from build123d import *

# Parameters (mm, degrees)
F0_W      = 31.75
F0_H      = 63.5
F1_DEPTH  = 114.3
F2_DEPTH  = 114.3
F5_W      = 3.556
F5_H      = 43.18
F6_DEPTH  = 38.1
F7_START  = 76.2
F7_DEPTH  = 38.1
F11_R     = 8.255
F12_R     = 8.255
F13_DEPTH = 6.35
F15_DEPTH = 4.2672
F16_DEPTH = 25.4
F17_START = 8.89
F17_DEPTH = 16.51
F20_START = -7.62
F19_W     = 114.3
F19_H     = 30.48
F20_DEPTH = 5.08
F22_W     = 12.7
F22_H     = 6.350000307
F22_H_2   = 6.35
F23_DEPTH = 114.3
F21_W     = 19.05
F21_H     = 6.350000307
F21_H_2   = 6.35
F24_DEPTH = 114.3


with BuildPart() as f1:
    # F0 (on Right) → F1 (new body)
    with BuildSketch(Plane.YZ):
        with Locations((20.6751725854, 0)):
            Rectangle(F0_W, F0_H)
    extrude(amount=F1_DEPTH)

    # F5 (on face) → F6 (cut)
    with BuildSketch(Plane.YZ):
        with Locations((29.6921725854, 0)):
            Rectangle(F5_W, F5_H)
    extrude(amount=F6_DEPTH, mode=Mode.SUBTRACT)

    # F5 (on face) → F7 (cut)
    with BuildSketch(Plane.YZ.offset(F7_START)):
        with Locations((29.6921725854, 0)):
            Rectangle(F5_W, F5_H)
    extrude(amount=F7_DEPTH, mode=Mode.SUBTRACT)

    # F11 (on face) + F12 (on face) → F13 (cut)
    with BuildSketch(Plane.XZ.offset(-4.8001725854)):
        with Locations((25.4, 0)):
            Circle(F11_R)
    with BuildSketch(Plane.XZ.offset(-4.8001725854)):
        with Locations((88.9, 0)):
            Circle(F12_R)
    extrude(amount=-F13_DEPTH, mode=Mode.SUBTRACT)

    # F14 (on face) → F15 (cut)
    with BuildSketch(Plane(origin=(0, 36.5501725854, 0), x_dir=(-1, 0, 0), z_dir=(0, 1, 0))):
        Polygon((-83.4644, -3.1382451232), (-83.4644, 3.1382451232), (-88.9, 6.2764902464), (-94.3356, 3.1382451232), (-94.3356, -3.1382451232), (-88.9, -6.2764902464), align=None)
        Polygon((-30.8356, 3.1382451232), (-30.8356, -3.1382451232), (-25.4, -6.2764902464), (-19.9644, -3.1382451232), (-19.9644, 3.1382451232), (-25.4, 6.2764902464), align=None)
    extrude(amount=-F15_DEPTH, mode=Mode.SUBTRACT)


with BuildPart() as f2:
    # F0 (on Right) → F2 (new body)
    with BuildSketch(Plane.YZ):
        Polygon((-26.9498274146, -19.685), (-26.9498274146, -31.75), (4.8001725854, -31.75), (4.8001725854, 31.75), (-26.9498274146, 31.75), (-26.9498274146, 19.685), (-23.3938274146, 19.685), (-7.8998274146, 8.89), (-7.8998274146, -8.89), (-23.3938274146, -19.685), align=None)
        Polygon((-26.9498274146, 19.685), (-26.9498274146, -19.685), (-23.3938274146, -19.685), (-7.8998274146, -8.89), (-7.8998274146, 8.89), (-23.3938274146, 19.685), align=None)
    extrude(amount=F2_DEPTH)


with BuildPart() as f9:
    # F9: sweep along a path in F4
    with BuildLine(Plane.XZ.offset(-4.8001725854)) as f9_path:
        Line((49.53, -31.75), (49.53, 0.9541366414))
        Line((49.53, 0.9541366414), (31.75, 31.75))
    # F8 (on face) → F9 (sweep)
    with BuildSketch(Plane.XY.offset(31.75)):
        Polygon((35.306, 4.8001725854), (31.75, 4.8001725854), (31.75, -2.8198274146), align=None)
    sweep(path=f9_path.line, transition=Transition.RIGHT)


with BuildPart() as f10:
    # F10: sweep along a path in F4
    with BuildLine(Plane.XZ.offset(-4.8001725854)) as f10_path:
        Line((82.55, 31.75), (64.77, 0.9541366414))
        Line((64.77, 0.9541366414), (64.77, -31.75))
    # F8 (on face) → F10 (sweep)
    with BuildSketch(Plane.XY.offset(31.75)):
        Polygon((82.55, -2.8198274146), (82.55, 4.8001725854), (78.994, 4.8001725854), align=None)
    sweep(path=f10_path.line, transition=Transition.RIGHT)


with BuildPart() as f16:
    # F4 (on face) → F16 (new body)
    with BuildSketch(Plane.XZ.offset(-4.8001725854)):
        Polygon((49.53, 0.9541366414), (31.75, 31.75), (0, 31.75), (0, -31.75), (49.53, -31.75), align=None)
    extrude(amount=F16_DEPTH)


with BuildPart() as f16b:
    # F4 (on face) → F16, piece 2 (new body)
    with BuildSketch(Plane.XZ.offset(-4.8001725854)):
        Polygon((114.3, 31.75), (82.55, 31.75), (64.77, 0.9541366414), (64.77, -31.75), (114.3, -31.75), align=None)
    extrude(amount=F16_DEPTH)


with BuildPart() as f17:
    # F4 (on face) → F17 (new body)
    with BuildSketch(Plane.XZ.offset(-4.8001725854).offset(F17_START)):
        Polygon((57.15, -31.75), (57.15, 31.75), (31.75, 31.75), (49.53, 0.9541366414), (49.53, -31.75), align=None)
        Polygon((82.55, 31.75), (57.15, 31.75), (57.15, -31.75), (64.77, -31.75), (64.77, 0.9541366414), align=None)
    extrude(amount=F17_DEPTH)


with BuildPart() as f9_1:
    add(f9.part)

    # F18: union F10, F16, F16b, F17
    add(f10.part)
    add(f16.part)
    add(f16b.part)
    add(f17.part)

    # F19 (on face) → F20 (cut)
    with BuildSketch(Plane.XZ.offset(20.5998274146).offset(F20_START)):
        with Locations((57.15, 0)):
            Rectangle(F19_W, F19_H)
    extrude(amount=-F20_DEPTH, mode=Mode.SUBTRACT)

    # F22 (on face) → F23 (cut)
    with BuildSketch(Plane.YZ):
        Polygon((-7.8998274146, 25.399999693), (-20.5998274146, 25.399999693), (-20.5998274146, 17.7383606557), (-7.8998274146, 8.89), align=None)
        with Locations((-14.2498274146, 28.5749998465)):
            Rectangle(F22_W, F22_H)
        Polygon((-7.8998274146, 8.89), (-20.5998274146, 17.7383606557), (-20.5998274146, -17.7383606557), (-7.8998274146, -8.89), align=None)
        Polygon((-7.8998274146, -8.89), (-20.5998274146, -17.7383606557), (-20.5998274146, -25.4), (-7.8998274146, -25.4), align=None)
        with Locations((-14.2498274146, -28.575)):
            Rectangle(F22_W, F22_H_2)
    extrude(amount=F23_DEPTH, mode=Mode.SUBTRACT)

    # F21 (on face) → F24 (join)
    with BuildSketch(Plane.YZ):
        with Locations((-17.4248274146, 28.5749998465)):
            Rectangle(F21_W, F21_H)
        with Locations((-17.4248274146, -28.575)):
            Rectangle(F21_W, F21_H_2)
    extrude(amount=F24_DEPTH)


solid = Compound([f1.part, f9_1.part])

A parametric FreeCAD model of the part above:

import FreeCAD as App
import Part
import Sketcher
Q = App.Units.Quantity


def add_polygon(sketch, points):
    """Adds a closed chain of lines whose ends are joined by coincident constraints."""
    first, n = sketch.GeometryCount, len(points)
    for a, b in zip(points, points[1:] + points[:1]):
        sketch.addGeometry(Part.LineSegment(App.Vector(*a, 0), App.Vector(*b, 0)), False)
    for i in range(n):
        sketch.addConstraint(Sketcher.Constraint("Coincident", first + i, 2, first + (i + 1) % n, 1))

doc = App.newDocument("Part")
params = doc.addObject("Spreadsheet::Sheet", "Params")
for row, (alias, value) in enumerate([
    ("sketch1_height", "2.5 in"),
    ("sketch1_width", "1.25 in"),
    ("pad1_length", "4.5 in"),
    ("sketch2_height", "1.7 in"),
    ("sketch2_width", "0.14 in"),
    ("pocket1_length", "1.5 in"),
    ("sketch3_height", "1.7 in"),
    ("sketch3_width", "0.14 in"),
    ("pocket2_length", "1.5 in"),
    ("sketch4_diameter", "0.65 in"),
    ("pocket3_length", "0.25 in"),
    ("pocket4_length", "0.168 in"),
    ("sketch6_height", "2.5 in"),
    ("sketch6_width", "1.25 in"),
    ("pad2_length", "4.5 in"),
    ("sketch7_height", "0.3 in"),
    ("sketch7_width", "0.14 in"),
    ("sketch8_length", "1.4 in"),
    ("sketch9_height", "0.3 in"),
    ("sketch9_width", "0.14 in"),
    ("sketch10_length", "1.4 in"),
    ("sketch11_height", "2.5 in"),
    ("sketch11_length", "1.4 in"),
    ("sketch11_width", "1.25 in"),
    ("pad3_length", "1 in"),
    ("sketch12_height", "2.5 in"),
    ("sketch12_length", "1.4 in"),
    ("sketch12_width", "1.25 in"),
    ("pad4_length", "1 in"),
    ("sketch13_width", "2 in"),
    ("sketch13_width2", "0.6 in"),
    ("pad5_length", "0.65 in"),
    ("sketch14_width", "4.5 in"),
    ("sketch14_height", "1.2 in"),
    ("pocket5_length", "0.2 in"),
    ("sketch15_width", "0.5 in"),
    ("sketch15_height", "2.5 in"),
    ("pocket6_length", "4.5 in"),
    ("sketch16_width", "0.75 in"),
    ("sketch16_height", "0.25 in"),
    ("pad6_length", "4.5 in"),
], start=1):
    params.set(f"A{row}", alias)
    params.set(f"B{row}", "=" + value)
    params.setAlias(f"B{row}", alias)

body = doc.addObject("PartDesign::Body", "Body")

# Sketch on YZ plane
sketch1 = body.newObject("Sketcher::SketchObject", "Sketch")
sketch1.AttachmentSupport = (doc.getObject("YZ_Plane"), [""])
sketch1.MapMode = "FlatFace"
add_polygon(sketch1, [(5, 32), (5, -32), (37, -32), (37, 32)])  # lines 0-3
sketch1.addConstraint([
    Sketcher.Constraint("Vertical", 0),
    Sketcher.Constraint("Horizontal", 1),
    Sketcher.Constraint("Vertical", 2),
    Sketcher.Constraint("Horizontal", 3),
    Sketcher.Constraint("DistanceY", 0, 2, 0, 1, Q("2.5 in")),
    Sketcher.Constraint("DistanceX", 1, 1, 1, 2, Q("1.25 in")),
    Sketcher.Constraint("DistanceY", 0, 2, -1, 1, Q("1.25 in")),
    Sketcher.Constraint("DistanceX", -1, 1, 0, 2, Q("4.800173 mm")),
])
sketch1.setExpression("Constraints[8]", "Params.sketch1_height")
sketch1.setExpression("Constraints[9]", "Params.sketch1_width")
pad1 = body.newObject("PartDesign::Pad", "Pad")
pad1.Profile = sketch1
pad1.setExpression("Length", "Params.pad1_length")

# Sketch on YZ plane
sketch2 = body.newObject("Sketcher::SketchObject", "Sketch001")
sketch2.AttachmentSupport = (doc.getObject("YZ_Plane"), [""])
sketch2.MapMode = "FlatFace"
add_polygon(sketch2, [(27.9, 21.6), (27.9, -21.6), (31.5, -21.6), (31.5, 21.6)])  # lines 0-3
sketch2.addConstraint([
    Sketcher.Constraint("Vertical", 0),
    Sketcher.Constraint("Horizontal", 1),
    Sketcher.Constraint("Vertical", 2),
    Sketcher.Constraint("Horizontal", 3),
    Sketcher.Constraint("DistanceY", 0, 2, 0, 1, Q("1.7 in")),
    Sketcher.Constraint("DistanceX", 1, 1, 1, 2, Q("0.14 in")),
    Sketcher.Constraint("DistanceY", 0, 2, -1, 1, Q("0.85 in")),
    Sketcher.Constraint("DistanceX", -1, 1, 0, 2, Q("27.914173 mm")),
])
sketch2.setExpression("Constraints[8]", "Params.sketch2_height")
sketch2.setExpression("Constraints[9]", "Params.sketch2_width")
pocket1 = body.newObject("PartDesign::Pocket", "Pocket")
pocket1.Profile = sketch2
pocket1.setExpression("Length", "Params.pocket1_length")
pocket1.Reversed = True

# Sketch on YZ plane
sketch3 = body.newObject("Sketcher::SketchObject", "Sketch002")
sketch3.AttachmentSupport = (doc.getObject("YZ_Plane"), [""])
sketch3.MapMode = "FlatFace"
sketch3.AttachmentOffset = App.Placement(App.Vector(0, 0, 3 * 25.4), App.Rotation())
add_polygon(sketch3, [(27.9, 21.6), (27.9, -21.6), (31.5, -21.6), (31.5, 21.6)])  # lines 0-3
sketch3.addConstraint([
    Sketcher.Constraint("Vertical", 0),
    Sketcher.Constraint("Horizontal", 1),
    Sketcher.Constraint("Vertical", 2),
    Sketcher.Constraint("Horizontal", 3),
    Sketcher.Constraint("DistanceY", 0, 2, 0, 1, Q("1.7 in")),
    Sketcher.Constraint("DistanceX", 1, 1, 1, 2, Q("0.14 in")),
    Sketcher.Constraint("DistanceY", 0, 2, -1, 1, Q("0.85 in")),
    Sketcher.Constraint("DistanceX", -1, 1, 0, 2, Q("27.914173 mm")),
])
sketch3.setExpression("Constraints[8]", "Params.sketch3_height")
sketch3.setExpression("Constraints[9]", "Params.sketch3_width")
pocket2 = body.newObject("PartDesign::Pocket", "Pocket001")
pocket2.Profile = sketch3
pocket2.setExpression("Length", "Params.pocket2_length")
pocket2.Reversed = True

# Sketch on XZ plane
sketch4 = body.newObject("Sketcher::SketchObject", "Sketch003")
sketch4.AttachmentSupport = (doc.getObject("XZ_Plane"), [""])
sketch4.MapMode = "FlatFace"
sketch4.AttachmentOffset = App.Placement(App.Vector(0, 0, -4.800173), App.Rotation())
sketch4.addGeometry([
    Part.Circle(App.Vector(25, 0, 0), App.Vector(0, 0, 1), 8),
    Part.Circle(App.Vector(89, 0, 0), App.Vector(0, 0, 1), 8),
], False)
sketch4.addConstraint([
    Sketcher.Constraint("Equal", 0, 1),
    Sketcher.Constraint("PointOnObject", 0, 3, -1),
    Sketcher.Constraint("PointOnObject", 1, 3, -1),
    Sketcher.Constraint("Diameter", 0, Q("0.65 in")),
    Sketcher.Constraint("DistanceX", -1, 1, 0, 3, Q("1 in")),
    Sketcher.Constraint("DistanceX", -1, 1, 1, 3, Q("3.5 in")),
])
sketch4.setExpression("Constraints[3]", "Params.sketch4_diameter")
pocket3 = body.newObject("PartDesign::Pocket", "Pocket002")
pocket3.Profile = sketch4
pocket3.setExpression("Length", "Params.pocket3_length")

# Sketch on XZ plane
sketch5 = body.newObject("Sketcher::SketchObject", "Sketch004")
sketch5.AttachmentSupport = (doc.getObject("XZ_Plane"), [""])
sketch5.MapMode = "FlatFace"
sketch5.AttachmentOffset = App.Placement(App.Vector(0, 0, -36.550173), App.Rotation())
add_polygon(sketch5, [(83, -3), (83, 3), (89, 6), (94, 3), (94, -3), (89, -6)])  # lines 0-5
add_polygon(sketch5, [(31, 3), (31, -3), (25, -6), (20, -3), (20, 3), (25, 6)])  # lines 6-11
sketch5.addConstraint([
    Sketcher.Constraint("Vertical", 0),
    Sketcher.Constraint("Vertical", 3),
    Sketcher.Constraint("Vertical", 6),
    Sketcher.Constraint("Vertical", 9),
    Sketcher.Constraint("Symmetric", 1, 2, 4, 2, -1),
    Sketcher.Constraint("Symmetric", 7, 2, 10, 2, -1),
    Sketcher.Constraint("Parallel", 1, 4),
    Sketcher.Constraint("Parallel", 2, 5),
    Sketcher.Constraint("Parallel", 4, 7),
    Sketcher.Constraint("Parallel", 5, 8),
    Sketcher.Constraint("Parallel", 7, 10),
    Sketcher.Constraint("Parallel", 8, 11),
    Sketcher.Constraint("Horizontal", 0, 2, 2, 2),
    Sketcher.Constraint("Horizontal", 3, 2, 5, 2),
    Sketcher.Constraint("Horizontal", 5, 2, 6, 2),
    Sketcher.Constraint("Horizontal", 4, 2, 7, 2),
    Sketcher.Constraint("Horizontal", 6, 2, 8, 2),
    Sketcher.Constraint("DistanceX", -1, 1, 7, 2, Q("1 in")),
    Sketcher.Constraint("Angle", 1, Q("30 deg")),
    Sketcher.Constraint("DistanceX", -1, 1, 1, 2, Q("3.5 in")),
    Sketcher.Constraint("DistanceX", -1, 1, 0, 2, Q("3.286 in")),
    Sketcher.Constraint("DistanceY", 0, 1, 0, 2, Q("6.27649 mm")),
])
pocket4 = body.newObject("PartDesign::Pocket", "Pocket003")
pocket4.Profile = sketch5
pocket4.setExpression("Length", "Params.pocket4_length")
pocket4.Reversed = True
body2 = doc.addObject("PartDesign::Body", "Body001")

# Sketch on YZ plane
sketch6 = body2.newObject("Sketcher::SketchObject", "Sketch005")
sketch6.AttachmentSupport = (doc.getObject("YZ_Plane001"), [""])
sketch6.MapMode = "FlatFace"
add_polygon(sketch6, [(-27, -32), (5, -32), (5, 32), (-27, 32)])  # lines 0-3
sketch6.addConstraint([
    Sketcher.Constraint("Horizontal", 0),
    Sketcher.Constraint("Vertical", 1),
    Sketcher.Constraint("Horizontal", 2),
    Sketcher.Constraint("Vertical", 3),
    Sketcher.Constraint("DistanceY", 1, 1, 1, 2, Q("2.5 in")),
    Sketcher.Constraint("DistanceX", 0, 1, 0, 2, Q("1.25 in")),
    Sketcher.Constraint("DistanceY", 0, 2, -1, 1, Q("1.25 in")),
    Sketcher.Constraint("DistanceX", -1, 1, 0, 2, Q("4.800173 mm")),
])
sketch6.setExpression("Constraints[8]", "Params.sketch6_height")
sketch6.setExpression("Constraints[9]", "Params.sketch6_width")
pad2 = body2.newObject("PartDesign::Pad", "Pad001")
pad2.Profile = sketch6
pad2.setExpression("Length", "Params.pad2_length")
body3 = doc.addObject("PartDesign::Body", "Body002")

# Sketch on XY plane
sketch7 = body3.newObject("Sketcher::SketchObject", "Sketch006")
sketch7.AttachmentSupport = (doc.getObject("XY_Plane002"), [""])
sketch7.MapMode = "FlatFace"
sketch7.AttachmentOffset = App.Placement(App.Vector(0, 0, 1.25 * 25.4), App.Rotation())
add_polygon(sketch7, [(35.3, 4.8), (31.8, 4.8), (31.8, -2.8)])  # lines 0-2
sketch7.addConstraint([
    Sketcher.Constraint("Horizontal", 0),
    Sketcher.Constraint("Vertical", 1),
    Sketcher.Constraint("DistanceY", 1, 2, 1, 1, Q("0.3 in")),
    Sketcher.Constraint("DistanceX", 0, 2, 0, 1, Q("0.14 in")),
    Sketcher.Constraint("DistanceX", -1, 1, 0, 2, Q("1.25 in")),
    Sketcher.Constraint("DistanceY", -1, 1, 0, 2, Q("4.800173 mm")),
])
sketch7.setExpression("Constraints[5]", "Params.sketch7_height")
sketch7.setExpression("Constraints[6]", "Params.sketch7_width")

# Sketch on XZ plane
sketch8 = body3.newObject("Sketcher::SketchObject", "Sketch007")
sketch8.AttachmentSupport = (doc.getObject("XZ_Plane002"), [""])
sketch8.MapMode = "FlatFace"
sketch8.AttachmentOffset = App.Placement(App.Vector(0, 0, -4.800173), App.Rotation())
sketch8.addGeometry([
    Part.LineSegment(App.Vector(50, -32, 0), App.Vector(50, 1, 0)),
    Part.LineSegment(App.Vector(50, 1, 0), App.Vector(32, 32, 0)),
], False)
sketch8.addConstraint([
    Sketcher.Constraint("Coincident", 0, 2, 1, 1),
    Sketcher.Constraint("Vertical", 0),
    Sketcher.Constraint("Angle", 1, Q("120 deg")),
    Sketcher.Constraint("Distance", 1, Q("1.4 in")),
    Sketcher.Constraint("DistanceY", 0, 1, 1, 2, Q("2.5 in")),
    Sketcher.Constraint("DistanceX", -1, 1, 0, 1, Q("1.95 in")),
    Sketcher.Constraint("DistanceY", 0, 1, -1, 1, Q("1.25 in")),
])
sketch8.setExpression("Constraints[3]", "Params.sketch8_length")
doc.recompute()

additivepipe = body3.newObject("PartDesign::AdditivePipe", "AdditivePipe")
additivepipe.Profile = sketch7
additivepipe.Spine = (sketch8, ["Edge1", "Edge2"])
additivepipe.Transition = "Right corner"
body4 = doc.addObject("PartDesign::Body", "Body003")

# Sketch on XY plane
sketch9 = body4.newObject("Sketcher::SketchObject", "Sketch008")
sketch9.AttachmentSupport = (doc.getObject("XY_Plane003"), [""])
sketch9.MapMode = "FlatFace"
sketch9.AttachmentOffset = App.Placement(App.Vector(0, 0, 1.25 * 25.4), App.Rotation())
add_polygon(sketch9, [(82.5, -2.8), (82.5, 4.8), (79, 4.8)])  # lines 0-2
sketch9.addConstraint([
    Sketcher.Constraint("Vertical", 0),
    Sketcher.Constraint("Horizontal", 1),
    Sketcher.Constraint("DistanceY", 0, 1, 0, 2, Q("0.3 in")),
    Sketcher.Constraint("DistanceX", 1, 2, 1, 1, Q("0.14 in")),
    Sketcher.Constraint("DistanceX", -1, 1, 0, 2, Q("3.25 in")),
    Sketcher.Constraint("DistanceY", -1, 1, 0, 2, Q("4.800173 mm")),
])
sketch9.setExpression("Constraints[5]", "Params.sketch9_height")
sketch9.setExpression("Constraints[6]", "Params.sketch9_width")

# Sketch on XZ plane
sketch10 = body4.newObject("Sketcher::SketchObject", "Sketch009")
sketch10.AttachmentSupport = (doc.getObject("XZ_Plane003"), [""])
sketch10.MapMode = "FlatFace"
sketch10.AttachmentOffset = App.Placement(App.Vector(0, 0, -4.800173), App.Rotation())
sketch10.addGeometry([
    Part.LineSegment(App.Vector(83, 32, 0), App.Vector(65, 1, 0)),
    Part.LineSegment(App.Vector(65, 1, 0), App.Vector(65, -32, 0)),
], False)
sketch10.addConstraint([
    Sketcher.Constraint("Coincident", 0, 2, 1, 1),
    Sketcher.Constraint("Vertical", 1),
    Sketcher.Constraint("Angle", 0, Q("-120 deg")),
    Sketcher.Constraint("Distance", 0, Q("1.4 in")),
    Sketcher.Constraint("DistanceY", 1, 2, 0, 1, Q("2.5 in")),
    Sketcher.Constraint("DistanceX", -1, 1, 0, 1, Q("3.25 in")),
    Sketcher.Constraint("DistanceY", -1, 1, 0, 1, Q("1.25 in")),
])
sketch10.setExpression("Constraints[3]", "Params.sketch10_length")
doc.recompute()

additivepipe2 = body4.newObject("PartDesign::AdditivePipe", "AdditivePipe001")
additivepipe2.Profile = sketch9
additivepipe2.Spine = (sketch10, ["Edge1", "Edge2"])
additivepipe2.Transition = "Right corner"
body5 = doc.addObject("PartDesign::Body", "Body004")

# Sketch on XZ plane
sketch11 = body5.newObject("Sketcher::SketchObject", "Sketch010")
sketch11.AttachmentSupport = (doc.getObject("XZ_Plane004"), [""])
sketch11.MapMode = "FlatFace"
sketch11.AttachmentOffset = App.Placement(App.Vector(0, 0, -4.800173), App.Rotation())
add_polygon(sketch11, [(50, 1), (32, 32), (0, 32), (0, -32), (50, -32)])  # lines 0-4
sketch11.addConstraint([
    Sketcher.Constraint("Horizontal", 1),
    Sketcher.Constraint("Vertical", 2),
    Sketcher.Constraint("Horizontal", 3),
    Sketcher.Constraint("Vertical", 4),
    Sketcher.Constraint("Symmetric", 1, 2, 2, 2, -1, 1),
    Sketcher.Constraint("DistanceY", 2, 2, 2, 1, Q("2.5 in")),
    Sketcher.Constraint("Angle", 0, Q("120 deg")),
    Sketcher.Constraint("Distance", 0, Q("1.4 in")),
    Sketcher.Constraint("DistanceX", 1, 2, 1, 1, Q("1.25 in")),
])
sketch11.setExpression("Constraints[10]", "Params.sketch11_height")
sketch11.setExpression("Constraints[12]", "Params.sketch11_length")
sketch11.setExpression("Constraints[13]", "Params.sketch11_width")
pad3 = body5.newObject("PartDesign::Pad", "Pad002")
pad3.Profile = sketch11
pad3.setExpression("Length", "Params.pad3_length")
body6 = doc.addObject("PartDesign::Body", "Body005")

# Sketch on XZ plane
sketch12 = body6.newObject("Sketcher::SketchObject", "Sketch011")
sketch12.AttachmentSupport = (doc.getObject("XZ_Plane005"), [""])
sketch12.MapMode = "FlatFace"
sketch12.AttachmentOffset = App.Placement(App.Vector(0, 0, -4.800173), App.Rotation())
add_polygon(sketch12, [(114, 32), (83, 32), (65, 1), (65, -32), (114, -32)])  # lines 0-4
sketch12.addConstraint([
    Sketcher.Constraint("Horizontal", 0),
    Sketcher.Constraint("Vertical", 2),
    Sketcher.Constraint("Horizontal", 3),
    Sketcher.Constraint("Vertical", 4),
    Sketcher.Constraint("DistanceY", 4, 1, 4, 2, Q("2.5 in")),
    Sketcher.Constraint("Angle", 1, Q("-120 deg")),
    Sketcher.Constraint("Distance", 1, Q("1.4 in")),
    Sketcher.Constraint("DistanceX", 0, 2, 0, 1, Q("1.25 in")),
    Sketcher.Constraint("DistanceX", -1, 1, 3, 2, Q("4.5 in")),
    Sketcher.Constraint("DistanceY", -1, 1, 0, 2, Q("1.25 in")),
])
sketch12.setExpression("Constraints[9]", "Params.sketch12_height")
sketch12.setExpression("Constraints[11]", "Params.sketch12_length")
sketch12.setExpression("Constraints[12]", "Params.sketch12_width")
pad4 = body6.newObject("PartDesign::Pad", "Pad003")
pad4.Profile = sketch12
pad4.setExpression("Length", "Params.pad4_length")
body7 = doc.addObject("PartDesign::Body", "Body006")

# Sketch on XZ plane
sketch13 = body7.newObject("Sketcher::SketchObject", "Sketch012")
sketch13.AttachmentSupport = (doc.getObject("XZ_Plane006"), [""])
sketch13.MapMode = "FlatFace"
sketch13.AttachmentOffset = App.Placement(App.Vector(0, 0, 4.089827), App.Rotation())
add_polygon(sketch13, [(32, 32), (50, 1), (50, -32), (65, -32), (65, 1), (83, 32)])  # lines 0-5
sketch13.addConstraint([
    Sketcher.Constraint("Vertical", 1),
    Sketcher.Constraint("Horizontal", 2),
    Sketcher.Constraint("Vertical", 3),
    Sketcher.Constraint("Horizontal", 5),
    Sketcher.Constraint("Horizontal", 0, 2, 3, 2),
    Sketcher.Constraint("Equal", 0, 4),
    Sketcher.Constraint("DistanceX", 5, 2, 5, 1, Q("2 in")),
    Sketcher.Constraint("DistanceX", 2, 1, 2, 2, Q("0.6 in")),
    Sketcher.Constraint("Angle", 0, Q("-60 deg")),
    Sketcher.Constraint("DistanceY", 2, 2, 4, 2, Q("2.5 in")),
    Sketcher.Constraint("DistanceX", -1, 1, 0, 2, Q("1.95 in")),
    Sketcher.Constraint("DistanceY", 1, 2, -1, 1, Q("1.25 in")),
])
sketch13.setExpression("Constraints[12]", "Params.sketch13_width")
sketch13.setExpression("Constraints[13]", "Params.sketch13_width2")
pad5 = body7.newObject("PartDesign::Pad", "Pad004")
pad5.Profile = sketch13
pad5.setExpression("Length", "Params.pad5_length")
body3.AllowCompound = True
doc.recompute()

boolean = body3.newObject("PartDesign::Boolean", "Boolean")
boolean.Type = "Fuse"
boolean.addObjects([body4])
doc.recompute()

boolean2 = body3.newObject("PartDesign::Boolean", "Boolean001")
boolean2.Type = "Fuse"
boolean2.addObjects([body5])
doc.recompute()

boolean3 = body3.newObject("PartDesign::Boolean", "Boolean002")
boolean3.Type = "Fuse"
boolean3.addObjects([body6])
doc.recompute()

boolean4 = body3.newObject("PartDesign::Boolean", "Boolean003")
boolean4.Type = "Fuse"
boolean4.addObjects([body7])

# Sketch on XZ plane
sketch14 = body3.newObject("Sketcher::SketchObject", "Sketch013")
sketch14.AttachmentSupport = (doc.getObject("XZ_Plane002"), [""])
sketch14.MapMode = "FlatFace"
sketch14.AttachmentOffset = App.Placement(App.Vector(0, 0, 12.979827), App.Rotation())
add_polygon(sketch14, [(0, 15), (0, -15), (114, -15), (114, 15)])  # lines 0-3
sketch14.addConstraint([
    Sketcher.Constraint("Vertical", 0),
    Sketcher.Constraint("Horizontal", 1),
    Sketcher.Constraint("Vertical", 2),
    Sketcher.Constraint("Horizontal", 3),
    Sketcher.Constraint("Symmetric", 0, 2, 3, 2, -1, 1),
    Sketcher.Constraint("DistanceX", 1, 1, 1, 2, Q("4.5 in")),
    Sketcher.Constraint("DistanceY", 0, 2, 0, 1, Q("1.2 in")),
])
sketch14.setExpression("Constraints[9]", "Params.sketch14_width")
sketch14.setExpression("Constraints[10]", "Params.sketch14_height")
pocket5 = body3.newObject("PartDesign::Pocket", "Pocket004")
pocket5.Profile = sketch14
pocket5.setExpression("Length", "Params.pocket5_length")

# Sketch on YZ plane
sketch15 = body3.newObject("Sketcher::SketchObject", "Sketch014")
sketch15.AttachmentSupport = (doc.getObject("YZ_Plane002"), [""])
sketch15.MapMode = "FlatFace"
add_polygon(sketch15, [(-8, 32), (-21, 32), (-21, -32), (-8, -32)])  # lines 0-3
sketch15.addConstraint([
    Sketcher.Constraint("Horizontal", 0),
    Sketcher.Constraint("Vertical", 1),
    Sketcher.Constraint("Horizontal", 2),
    Sketcher.Constraint("Vertical", 3),
    Sketcher.Constraint("DistanceX", 0, 2, 0, 1, Q("0.5 in")),
    Sketcher.Constraint("DistanceY", 1, 2, 1, 1, Q("2.5 in")),
    Sketcher.Constraint("DistanceY", -1, 1, 0, 2, Q("1.25 in")),
    Sketcher.Constraint("DistanceX", 0, 2, -1, 1, Q("20.599827 mm")),
])
sketch15.setExpression("Constraints[8]", "Params.sketch15_width")
sketch15.setExpression("Constraints[9]", "Params.sketch15_height")
pocket6 = body3.newObject("PartDesign::Pocket", "Pocket005")
pocket6.Profile = sketch15
pocket6.setExpression("Length", "Params.pocket6_length")
pocket6.Reversed = True

# Sketch on YZ plane
sketch16 = body3.newObject("Sketcher::SketchObject", "Sketch015")
sketch16.AttachmentSupport = (doc.getObject("YZ_Plane002"), [""])
sketch16.MapMode = "FlatFace"
add_polygon(sketch16, [(-27, 32), (-27, 25), (-8, 25), (-8, 32)])  # lines 0-3
add_polygon(sketch16, [(-27, -25), (-27, -32), (-8, -32), (-8, -25)])  # lines 4-7
sketch16.addConstraint([
    Sketcher.Constraint("Vertical", 0),
    Sketcher.Constraint("Horizontal", 1),
    Sketcher.Constraint("Vertical", 2),
    Sketcher.Constraint("Horizontal", 3),
    Sketcher.Constraint("Vertical", 4),
    Sketcher.Constraint("Horizontal", 5),
    Sketcher.Constraint("Vertical", 6),
    Sketcher.Constraint("Horizontal", 7),
    Sketcher.Constraint("Symmetric", 3, 2, 4, 2, -1),
    Sketcher.Constraint("Symmetric", 1, 2, 6, 2, -1),
    Sketcher.Constraint("DistanceY", -1, 1, 0, 2, Q("1 in")),
    Sketcher.Constraint("DistanceX", 1, 1, 1, 2, Q("0.75 in")),
    Sketcher.Constraint("DistanceY", 0, 2, 0, 1, Q("0.25 in")),
    Sketcher.Constraint("DistanceX", 0, 2, -1, 1, Q("26.949827 mm")),
])
sketch16.setExpression("Constraints[19]", "Params.sketch16_width")
sketch16.setExpression("Constraints[20]", "Params.sketch16_height")
pad6 = body3.newObject("PartDesign::Pad", "Pad005")
pad6.Profile = sketch16
pad6.setExpression("Length", "Params.pad6_length")
body2.Visibility = False

doc.recompute()
